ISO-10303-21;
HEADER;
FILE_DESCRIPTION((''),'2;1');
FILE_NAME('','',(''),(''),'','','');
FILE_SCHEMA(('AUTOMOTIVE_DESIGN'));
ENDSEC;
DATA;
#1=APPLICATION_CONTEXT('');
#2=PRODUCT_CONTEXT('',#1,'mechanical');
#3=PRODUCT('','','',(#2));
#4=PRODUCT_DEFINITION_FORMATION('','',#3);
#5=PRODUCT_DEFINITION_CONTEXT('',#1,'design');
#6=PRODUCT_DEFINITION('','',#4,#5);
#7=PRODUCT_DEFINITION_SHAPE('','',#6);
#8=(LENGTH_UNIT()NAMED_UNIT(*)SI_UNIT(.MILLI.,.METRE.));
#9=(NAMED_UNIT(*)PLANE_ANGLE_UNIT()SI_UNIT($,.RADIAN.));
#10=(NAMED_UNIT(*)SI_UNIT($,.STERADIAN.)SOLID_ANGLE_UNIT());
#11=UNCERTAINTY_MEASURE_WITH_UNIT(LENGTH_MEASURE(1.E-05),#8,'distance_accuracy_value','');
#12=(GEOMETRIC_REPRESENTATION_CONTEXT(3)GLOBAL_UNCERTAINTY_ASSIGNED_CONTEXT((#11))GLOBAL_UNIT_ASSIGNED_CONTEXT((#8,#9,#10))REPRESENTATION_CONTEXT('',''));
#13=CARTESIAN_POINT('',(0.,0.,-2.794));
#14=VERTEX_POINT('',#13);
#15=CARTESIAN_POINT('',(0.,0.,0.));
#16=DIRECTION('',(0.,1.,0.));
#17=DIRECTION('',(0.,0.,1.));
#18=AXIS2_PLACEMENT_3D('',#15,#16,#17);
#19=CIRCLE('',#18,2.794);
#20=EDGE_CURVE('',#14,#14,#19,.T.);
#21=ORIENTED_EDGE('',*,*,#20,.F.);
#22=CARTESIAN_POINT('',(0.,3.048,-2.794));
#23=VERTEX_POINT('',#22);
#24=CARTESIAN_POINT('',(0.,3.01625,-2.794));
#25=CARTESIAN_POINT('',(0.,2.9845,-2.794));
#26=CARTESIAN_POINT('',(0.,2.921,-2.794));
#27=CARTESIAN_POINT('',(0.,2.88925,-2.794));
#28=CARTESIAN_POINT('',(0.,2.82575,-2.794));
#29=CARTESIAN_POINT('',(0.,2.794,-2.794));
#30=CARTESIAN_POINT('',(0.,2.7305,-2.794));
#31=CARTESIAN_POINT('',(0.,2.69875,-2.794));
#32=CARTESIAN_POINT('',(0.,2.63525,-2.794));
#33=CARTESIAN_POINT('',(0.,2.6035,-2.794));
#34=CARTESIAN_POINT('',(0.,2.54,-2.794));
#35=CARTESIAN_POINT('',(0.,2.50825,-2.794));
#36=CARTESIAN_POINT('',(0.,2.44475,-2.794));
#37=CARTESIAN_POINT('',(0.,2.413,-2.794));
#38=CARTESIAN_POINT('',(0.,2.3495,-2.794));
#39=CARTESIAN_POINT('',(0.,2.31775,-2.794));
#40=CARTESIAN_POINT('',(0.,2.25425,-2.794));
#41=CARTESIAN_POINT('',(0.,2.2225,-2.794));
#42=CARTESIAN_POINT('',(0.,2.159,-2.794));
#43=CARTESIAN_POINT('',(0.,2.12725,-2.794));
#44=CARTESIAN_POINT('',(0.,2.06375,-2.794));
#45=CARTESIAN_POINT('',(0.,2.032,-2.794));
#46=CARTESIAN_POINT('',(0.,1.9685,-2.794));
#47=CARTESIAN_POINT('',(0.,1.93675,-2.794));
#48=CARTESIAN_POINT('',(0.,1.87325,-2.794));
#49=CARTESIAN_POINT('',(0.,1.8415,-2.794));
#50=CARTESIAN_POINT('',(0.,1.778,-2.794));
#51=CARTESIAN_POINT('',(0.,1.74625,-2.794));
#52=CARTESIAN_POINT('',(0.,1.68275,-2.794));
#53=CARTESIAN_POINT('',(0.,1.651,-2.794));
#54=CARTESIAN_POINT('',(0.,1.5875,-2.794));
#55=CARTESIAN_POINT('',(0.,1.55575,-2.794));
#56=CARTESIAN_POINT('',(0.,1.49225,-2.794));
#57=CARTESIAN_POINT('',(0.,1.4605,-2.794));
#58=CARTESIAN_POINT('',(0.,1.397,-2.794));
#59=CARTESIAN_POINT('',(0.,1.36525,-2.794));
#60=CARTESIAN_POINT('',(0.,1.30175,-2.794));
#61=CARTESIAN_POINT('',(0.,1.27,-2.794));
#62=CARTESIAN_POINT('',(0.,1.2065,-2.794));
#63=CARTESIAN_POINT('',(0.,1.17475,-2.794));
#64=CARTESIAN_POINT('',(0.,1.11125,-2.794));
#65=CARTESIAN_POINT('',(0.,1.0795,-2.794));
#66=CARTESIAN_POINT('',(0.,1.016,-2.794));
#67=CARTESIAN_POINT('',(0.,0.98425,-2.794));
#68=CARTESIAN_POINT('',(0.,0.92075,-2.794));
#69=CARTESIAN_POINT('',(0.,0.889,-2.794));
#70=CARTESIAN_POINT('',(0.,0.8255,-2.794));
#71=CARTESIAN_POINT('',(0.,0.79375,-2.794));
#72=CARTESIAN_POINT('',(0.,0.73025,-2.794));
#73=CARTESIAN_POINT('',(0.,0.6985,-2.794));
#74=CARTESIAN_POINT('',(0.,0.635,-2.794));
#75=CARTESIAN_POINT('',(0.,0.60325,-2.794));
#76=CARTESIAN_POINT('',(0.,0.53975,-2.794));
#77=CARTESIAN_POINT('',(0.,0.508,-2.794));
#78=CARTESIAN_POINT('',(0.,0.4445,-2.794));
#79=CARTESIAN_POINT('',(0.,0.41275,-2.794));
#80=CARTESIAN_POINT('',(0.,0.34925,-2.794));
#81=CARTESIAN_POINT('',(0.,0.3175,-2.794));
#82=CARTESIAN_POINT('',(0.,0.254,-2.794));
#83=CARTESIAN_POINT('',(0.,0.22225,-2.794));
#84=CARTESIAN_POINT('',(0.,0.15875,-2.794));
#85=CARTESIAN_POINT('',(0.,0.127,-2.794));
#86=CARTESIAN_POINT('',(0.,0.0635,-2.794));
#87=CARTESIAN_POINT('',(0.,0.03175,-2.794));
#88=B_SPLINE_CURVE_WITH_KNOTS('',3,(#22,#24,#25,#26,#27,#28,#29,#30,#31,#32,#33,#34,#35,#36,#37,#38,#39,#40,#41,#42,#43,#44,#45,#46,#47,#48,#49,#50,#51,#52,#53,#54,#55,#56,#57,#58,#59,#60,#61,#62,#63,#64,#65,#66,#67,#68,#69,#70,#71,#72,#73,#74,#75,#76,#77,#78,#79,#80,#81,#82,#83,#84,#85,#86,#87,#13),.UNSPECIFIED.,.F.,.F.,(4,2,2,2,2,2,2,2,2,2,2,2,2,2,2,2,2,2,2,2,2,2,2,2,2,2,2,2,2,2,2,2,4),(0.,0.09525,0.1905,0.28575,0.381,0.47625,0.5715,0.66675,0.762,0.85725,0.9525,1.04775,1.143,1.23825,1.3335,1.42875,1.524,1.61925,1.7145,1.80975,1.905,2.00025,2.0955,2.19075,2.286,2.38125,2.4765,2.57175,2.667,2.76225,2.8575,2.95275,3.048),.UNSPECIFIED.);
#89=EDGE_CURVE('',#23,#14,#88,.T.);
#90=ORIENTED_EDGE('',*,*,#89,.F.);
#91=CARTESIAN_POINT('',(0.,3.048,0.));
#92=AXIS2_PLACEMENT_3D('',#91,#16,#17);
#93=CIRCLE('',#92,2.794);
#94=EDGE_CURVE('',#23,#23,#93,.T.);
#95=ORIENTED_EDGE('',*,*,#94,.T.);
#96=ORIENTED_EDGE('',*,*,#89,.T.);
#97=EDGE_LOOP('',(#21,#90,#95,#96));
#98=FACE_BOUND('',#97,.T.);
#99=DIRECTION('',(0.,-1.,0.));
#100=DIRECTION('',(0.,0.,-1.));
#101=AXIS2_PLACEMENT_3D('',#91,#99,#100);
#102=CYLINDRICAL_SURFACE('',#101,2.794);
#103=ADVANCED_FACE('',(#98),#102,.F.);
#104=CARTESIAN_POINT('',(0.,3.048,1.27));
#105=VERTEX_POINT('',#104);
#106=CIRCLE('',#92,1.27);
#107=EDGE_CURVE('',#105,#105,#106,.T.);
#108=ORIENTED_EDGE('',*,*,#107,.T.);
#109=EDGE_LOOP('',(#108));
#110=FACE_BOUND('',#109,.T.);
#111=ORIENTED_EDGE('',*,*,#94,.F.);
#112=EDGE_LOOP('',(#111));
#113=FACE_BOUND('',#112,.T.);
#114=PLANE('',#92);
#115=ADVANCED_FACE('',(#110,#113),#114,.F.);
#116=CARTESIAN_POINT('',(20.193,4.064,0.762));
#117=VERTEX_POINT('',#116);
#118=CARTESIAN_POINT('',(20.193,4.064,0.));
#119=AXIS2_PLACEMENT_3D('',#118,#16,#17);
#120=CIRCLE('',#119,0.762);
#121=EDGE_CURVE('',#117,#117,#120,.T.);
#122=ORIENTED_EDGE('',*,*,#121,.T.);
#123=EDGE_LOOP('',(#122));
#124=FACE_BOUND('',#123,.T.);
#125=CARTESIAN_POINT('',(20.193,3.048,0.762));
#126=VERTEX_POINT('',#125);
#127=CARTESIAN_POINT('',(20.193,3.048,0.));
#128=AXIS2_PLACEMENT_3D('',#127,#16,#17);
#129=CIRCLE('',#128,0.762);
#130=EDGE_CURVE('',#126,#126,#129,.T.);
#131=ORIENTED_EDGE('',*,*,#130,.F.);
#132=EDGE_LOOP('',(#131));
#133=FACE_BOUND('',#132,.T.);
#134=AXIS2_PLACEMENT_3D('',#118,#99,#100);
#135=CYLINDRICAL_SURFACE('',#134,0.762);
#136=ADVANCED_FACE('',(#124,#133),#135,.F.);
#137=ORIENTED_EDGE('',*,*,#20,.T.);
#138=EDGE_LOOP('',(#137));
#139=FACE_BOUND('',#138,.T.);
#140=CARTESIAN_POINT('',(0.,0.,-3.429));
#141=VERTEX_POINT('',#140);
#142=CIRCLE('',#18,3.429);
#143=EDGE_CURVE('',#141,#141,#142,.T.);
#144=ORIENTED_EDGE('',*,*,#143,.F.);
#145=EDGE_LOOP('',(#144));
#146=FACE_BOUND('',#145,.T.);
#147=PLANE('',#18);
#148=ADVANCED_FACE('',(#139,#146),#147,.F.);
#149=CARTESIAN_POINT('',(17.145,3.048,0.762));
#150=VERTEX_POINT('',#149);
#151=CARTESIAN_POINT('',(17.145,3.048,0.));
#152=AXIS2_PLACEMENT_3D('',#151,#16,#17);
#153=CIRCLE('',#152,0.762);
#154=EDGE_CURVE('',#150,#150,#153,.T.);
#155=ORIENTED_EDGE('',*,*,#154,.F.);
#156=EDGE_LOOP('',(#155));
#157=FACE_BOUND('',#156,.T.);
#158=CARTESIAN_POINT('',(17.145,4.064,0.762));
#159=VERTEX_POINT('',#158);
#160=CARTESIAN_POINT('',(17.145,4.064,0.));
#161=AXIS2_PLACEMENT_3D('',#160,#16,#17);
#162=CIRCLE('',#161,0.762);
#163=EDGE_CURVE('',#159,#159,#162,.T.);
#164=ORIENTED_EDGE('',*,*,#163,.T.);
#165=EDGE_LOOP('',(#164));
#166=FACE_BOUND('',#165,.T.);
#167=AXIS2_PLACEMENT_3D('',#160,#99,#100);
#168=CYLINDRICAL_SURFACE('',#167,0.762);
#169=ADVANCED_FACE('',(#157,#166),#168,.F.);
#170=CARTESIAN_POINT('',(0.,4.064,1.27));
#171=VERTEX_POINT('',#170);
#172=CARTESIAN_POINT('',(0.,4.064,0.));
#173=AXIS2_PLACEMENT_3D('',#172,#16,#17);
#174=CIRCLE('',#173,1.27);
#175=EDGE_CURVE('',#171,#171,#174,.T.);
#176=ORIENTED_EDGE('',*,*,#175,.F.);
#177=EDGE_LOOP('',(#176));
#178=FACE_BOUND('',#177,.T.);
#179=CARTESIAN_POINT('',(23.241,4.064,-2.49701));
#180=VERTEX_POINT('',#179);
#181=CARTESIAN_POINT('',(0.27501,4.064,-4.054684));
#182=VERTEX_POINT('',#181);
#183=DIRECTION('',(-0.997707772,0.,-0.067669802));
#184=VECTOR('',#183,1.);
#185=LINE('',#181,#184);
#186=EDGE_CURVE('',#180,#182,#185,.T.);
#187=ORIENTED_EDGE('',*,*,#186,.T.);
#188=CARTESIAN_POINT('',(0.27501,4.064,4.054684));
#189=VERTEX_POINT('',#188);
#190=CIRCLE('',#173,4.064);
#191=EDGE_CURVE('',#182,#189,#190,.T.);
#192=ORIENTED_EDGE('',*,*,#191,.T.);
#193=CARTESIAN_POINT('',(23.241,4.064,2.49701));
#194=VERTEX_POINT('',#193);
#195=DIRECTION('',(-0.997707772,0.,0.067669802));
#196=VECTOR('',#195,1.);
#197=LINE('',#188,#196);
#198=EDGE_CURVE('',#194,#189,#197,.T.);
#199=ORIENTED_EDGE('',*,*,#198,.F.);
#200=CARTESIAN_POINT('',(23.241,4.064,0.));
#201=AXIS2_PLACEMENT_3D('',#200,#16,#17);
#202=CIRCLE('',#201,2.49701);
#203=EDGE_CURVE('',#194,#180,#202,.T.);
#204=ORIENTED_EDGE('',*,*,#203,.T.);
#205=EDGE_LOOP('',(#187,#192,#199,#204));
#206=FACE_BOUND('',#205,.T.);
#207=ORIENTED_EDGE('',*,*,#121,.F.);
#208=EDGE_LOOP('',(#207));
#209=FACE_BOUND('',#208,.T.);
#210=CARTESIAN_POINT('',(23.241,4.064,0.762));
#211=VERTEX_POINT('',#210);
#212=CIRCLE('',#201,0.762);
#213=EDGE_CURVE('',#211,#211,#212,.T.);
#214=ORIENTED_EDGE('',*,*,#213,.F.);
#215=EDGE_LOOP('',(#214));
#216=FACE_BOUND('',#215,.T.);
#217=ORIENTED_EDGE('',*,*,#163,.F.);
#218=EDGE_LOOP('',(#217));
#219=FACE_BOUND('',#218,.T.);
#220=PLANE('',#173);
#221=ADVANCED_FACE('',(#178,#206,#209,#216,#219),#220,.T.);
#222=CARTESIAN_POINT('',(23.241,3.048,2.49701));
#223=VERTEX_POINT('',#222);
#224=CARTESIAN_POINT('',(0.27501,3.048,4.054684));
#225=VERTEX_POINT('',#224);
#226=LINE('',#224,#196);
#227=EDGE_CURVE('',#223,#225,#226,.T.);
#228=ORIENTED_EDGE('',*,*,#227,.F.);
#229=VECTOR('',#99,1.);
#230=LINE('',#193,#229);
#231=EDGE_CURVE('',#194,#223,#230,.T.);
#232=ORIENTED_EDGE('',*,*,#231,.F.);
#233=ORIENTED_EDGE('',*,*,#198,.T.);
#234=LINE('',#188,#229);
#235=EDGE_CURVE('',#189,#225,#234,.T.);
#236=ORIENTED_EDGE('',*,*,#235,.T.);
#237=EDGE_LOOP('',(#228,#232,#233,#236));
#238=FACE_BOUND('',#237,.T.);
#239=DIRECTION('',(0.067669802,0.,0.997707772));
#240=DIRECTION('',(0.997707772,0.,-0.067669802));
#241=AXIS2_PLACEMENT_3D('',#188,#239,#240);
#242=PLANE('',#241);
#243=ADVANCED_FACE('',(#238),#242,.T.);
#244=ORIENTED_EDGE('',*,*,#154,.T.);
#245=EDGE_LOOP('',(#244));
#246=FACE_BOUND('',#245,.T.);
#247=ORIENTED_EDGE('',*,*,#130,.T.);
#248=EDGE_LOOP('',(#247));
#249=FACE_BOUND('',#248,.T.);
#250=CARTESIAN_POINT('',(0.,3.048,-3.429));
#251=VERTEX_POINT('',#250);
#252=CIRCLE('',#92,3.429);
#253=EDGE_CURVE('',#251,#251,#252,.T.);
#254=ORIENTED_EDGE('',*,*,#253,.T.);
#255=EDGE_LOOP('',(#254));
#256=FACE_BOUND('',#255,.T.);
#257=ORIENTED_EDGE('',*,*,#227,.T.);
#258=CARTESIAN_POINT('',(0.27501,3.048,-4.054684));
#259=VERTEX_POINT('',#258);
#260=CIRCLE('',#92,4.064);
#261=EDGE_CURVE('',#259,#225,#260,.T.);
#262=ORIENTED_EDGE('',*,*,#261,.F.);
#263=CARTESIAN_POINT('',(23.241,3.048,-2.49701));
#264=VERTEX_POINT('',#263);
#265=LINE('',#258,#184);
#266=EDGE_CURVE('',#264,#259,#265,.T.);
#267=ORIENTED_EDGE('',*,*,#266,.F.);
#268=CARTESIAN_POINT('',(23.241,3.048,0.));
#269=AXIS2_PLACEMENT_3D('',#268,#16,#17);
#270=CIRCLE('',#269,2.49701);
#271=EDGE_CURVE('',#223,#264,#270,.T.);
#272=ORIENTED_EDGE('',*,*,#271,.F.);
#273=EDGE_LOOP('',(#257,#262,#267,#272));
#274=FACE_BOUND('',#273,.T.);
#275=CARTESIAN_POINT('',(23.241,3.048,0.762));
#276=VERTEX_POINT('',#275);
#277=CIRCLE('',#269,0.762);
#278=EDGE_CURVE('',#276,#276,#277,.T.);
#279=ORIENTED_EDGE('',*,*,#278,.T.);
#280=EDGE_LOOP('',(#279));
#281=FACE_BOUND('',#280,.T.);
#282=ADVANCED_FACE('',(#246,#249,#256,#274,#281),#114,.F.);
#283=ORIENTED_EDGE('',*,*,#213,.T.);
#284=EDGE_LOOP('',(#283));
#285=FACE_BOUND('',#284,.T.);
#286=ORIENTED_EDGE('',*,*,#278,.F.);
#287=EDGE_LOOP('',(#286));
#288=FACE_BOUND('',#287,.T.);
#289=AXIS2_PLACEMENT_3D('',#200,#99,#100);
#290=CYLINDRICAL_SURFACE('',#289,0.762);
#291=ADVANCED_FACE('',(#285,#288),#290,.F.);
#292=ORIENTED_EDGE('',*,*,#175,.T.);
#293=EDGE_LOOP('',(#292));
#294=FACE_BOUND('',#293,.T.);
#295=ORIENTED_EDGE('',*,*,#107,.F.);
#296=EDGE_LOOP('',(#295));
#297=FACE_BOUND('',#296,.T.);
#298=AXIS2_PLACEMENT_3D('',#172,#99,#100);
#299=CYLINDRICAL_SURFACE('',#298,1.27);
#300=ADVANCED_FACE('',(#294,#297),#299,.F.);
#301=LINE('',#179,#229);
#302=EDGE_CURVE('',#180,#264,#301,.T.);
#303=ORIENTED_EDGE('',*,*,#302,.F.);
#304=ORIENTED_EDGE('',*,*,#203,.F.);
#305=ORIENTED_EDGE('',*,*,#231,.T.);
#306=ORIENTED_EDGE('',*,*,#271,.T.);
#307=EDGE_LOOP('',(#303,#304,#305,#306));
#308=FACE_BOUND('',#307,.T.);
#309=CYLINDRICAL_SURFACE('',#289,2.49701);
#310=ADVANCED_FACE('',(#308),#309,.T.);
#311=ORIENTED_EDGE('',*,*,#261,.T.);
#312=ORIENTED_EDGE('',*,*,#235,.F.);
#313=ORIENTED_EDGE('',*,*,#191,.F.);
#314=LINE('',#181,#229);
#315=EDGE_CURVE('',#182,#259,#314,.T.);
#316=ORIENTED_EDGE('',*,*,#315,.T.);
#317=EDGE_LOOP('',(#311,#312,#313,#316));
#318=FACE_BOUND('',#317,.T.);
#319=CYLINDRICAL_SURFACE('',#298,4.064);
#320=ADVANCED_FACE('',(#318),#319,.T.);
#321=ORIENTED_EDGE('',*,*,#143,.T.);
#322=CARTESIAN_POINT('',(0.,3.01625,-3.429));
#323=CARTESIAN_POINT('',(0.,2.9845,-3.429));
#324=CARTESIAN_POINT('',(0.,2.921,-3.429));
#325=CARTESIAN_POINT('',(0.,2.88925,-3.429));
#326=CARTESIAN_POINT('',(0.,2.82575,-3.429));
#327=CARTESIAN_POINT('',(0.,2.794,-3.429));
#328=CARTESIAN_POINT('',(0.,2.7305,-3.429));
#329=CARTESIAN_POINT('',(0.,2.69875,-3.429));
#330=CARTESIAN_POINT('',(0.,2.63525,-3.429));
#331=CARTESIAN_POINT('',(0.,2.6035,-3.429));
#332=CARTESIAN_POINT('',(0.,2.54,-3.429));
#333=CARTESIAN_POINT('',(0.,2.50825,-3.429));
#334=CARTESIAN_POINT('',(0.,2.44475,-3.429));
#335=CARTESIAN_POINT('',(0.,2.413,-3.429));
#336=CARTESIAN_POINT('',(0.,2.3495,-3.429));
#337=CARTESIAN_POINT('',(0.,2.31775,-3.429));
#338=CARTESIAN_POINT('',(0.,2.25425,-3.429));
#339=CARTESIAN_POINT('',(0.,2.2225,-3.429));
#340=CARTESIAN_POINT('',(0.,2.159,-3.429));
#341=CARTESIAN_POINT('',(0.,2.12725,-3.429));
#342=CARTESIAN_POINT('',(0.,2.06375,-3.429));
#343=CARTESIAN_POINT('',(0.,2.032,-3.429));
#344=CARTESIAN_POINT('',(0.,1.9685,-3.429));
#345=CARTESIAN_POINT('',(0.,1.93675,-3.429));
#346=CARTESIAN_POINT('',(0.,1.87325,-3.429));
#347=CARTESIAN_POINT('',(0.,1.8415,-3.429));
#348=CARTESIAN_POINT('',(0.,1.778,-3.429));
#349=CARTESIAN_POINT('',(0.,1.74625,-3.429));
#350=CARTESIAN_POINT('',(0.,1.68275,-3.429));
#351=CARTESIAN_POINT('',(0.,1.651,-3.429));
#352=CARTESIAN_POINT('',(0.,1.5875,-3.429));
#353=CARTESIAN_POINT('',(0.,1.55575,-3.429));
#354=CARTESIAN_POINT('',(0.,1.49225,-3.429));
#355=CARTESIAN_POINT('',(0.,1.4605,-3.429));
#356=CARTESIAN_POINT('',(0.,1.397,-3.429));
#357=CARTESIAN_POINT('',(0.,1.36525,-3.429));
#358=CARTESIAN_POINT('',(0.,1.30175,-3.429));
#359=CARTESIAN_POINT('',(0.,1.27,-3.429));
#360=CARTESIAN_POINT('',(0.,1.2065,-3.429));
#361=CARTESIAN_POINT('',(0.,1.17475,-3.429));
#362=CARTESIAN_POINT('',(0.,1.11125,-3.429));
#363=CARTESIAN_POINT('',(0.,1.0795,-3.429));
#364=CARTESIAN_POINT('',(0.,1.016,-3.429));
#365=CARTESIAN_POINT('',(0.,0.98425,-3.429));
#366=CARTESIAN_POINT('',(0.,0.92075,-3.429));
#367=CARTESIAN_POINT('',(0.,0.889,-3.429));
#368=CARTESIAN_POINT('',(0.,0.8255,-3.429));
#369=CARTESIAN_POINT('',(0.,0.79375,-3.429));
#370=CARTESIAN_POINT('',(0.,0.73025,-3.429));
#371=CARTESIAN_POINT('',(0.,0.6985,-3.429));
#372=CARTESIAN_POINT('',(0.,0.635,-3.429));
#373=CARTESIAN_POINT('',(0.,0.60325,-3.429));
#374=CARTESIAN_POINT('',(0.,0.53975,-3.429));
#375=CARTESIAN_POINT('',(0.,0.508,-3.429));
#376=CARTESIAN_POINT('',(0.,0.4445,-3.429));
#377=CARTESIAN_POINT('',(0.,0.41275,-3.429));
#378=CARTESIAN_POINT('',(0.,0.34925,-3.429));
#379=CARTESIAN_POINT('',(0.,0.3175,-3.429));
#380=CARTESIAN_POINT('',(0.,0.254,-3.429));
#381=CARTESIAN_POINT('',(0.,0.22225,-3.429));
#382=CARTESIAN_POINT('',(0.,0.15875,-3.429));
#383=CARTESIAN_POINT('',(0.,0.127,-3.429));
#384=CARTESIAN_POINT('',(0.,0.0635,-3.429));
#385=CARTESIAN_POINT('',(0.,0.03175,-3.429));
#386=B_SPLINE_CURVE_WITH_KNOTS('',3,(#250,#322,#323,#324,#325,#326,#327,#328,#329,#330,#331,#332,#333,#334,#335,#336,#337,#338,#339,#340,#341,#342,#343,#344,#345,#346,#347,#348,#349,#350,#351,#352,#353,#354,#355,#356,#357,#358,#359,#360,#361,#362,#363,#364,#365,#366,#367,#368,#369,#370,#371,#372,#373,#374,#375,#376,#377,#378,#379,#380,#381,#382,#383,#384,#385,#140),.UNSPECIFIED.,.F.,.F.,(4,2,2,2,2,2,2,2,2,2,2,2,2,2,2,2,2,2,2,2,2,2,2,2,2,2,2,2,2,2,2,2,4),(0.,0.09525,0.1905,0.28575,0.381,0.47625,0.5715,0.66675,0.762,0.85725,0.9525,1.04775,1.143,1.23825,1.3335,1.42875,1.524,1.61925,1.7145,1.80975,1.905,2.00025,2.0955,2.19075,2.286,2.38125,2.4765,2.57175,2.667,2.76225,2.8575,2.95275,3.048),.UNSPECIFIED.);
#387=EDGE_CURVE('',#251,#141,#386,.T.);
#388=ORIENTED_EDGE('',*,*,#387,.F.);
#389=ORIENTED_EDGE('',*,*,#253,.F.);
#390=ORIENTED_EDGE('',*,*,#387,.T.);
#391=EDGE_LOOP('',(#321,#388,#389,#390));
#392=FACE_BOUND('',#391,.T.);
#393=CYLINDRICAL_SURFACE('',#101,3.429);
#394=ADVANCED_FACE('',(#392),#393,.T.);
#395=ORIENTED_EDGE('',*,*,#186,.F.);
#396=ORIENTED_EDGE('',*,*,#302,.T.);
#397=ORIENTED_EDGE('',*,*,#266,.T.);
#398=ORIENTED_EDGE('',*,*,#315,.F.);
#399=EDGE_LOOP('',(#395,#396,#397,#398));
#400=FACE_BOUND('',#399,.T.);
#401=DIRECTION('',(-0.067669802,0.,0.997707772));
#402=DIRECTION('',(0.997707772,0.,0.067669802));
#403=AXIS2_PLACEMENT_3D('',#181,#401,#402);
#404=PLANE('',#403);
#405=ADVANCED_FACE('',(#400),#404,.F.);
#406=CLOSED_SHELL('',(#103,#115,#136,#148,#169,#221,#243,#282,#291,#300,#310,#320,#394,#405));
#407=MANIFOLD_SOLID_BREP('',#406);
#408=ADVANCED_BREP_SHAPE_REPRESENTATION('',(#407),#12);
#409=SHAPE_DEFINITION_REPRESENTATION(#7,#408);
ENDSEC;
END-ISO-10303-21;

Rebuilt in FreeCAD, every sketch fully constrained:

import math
import FreeCAD as App
import Part
import Sketcher

V = App.Vector
Q = App.Units.Quantity

doc = App.newDocument("Part")
body = doc.addObject("PartDesign::Body", "Body")

sketch1 = body.newObject("Sketcher::SketchObject", "Sketch")
sketch1.AttachmentSupport = (doc.getObject("XZ_Plane"), [""])
sketch1.MapMode = "FlatFace"
sketch1.addGeometry([
    Part.Circle(V(0, 0, 0), V(0, 0, 1), 3.4),
    Part.Circle(V(0, 0, 0), V(0, 0, 1), 2.8),
], False)
sketch1.addConstraint([
    Sketcher.Constraint("Coincident", 0, 3, -1, 1),
    Sketcher.Constraint("Coincident", 1, 3, -1, 1),
    Sketcher.Constraint("Diameter", 0, Q("0.27 in")),
    Sketcher.Constraint("Diameter", 1, Q("0.22 in")),
])
pad1 = body.newObject("PartDesign::Pad", "Pad")
pad1.Profile = sketch1
pad1.Length = Q("0.12 in")
pad1.Reversed = True

sketch2 = body.newObject("Sketcher::SketchObject", "Sketch001")
sketch2.AttachmentSupport = (doc.getObject("XZ_Plane"), [""])
sketch2.MapMode = "FlatFace"
sketch2.AttachmentOffset = App.Placement(V(0, 0, -0.12 * 25.4), App.Rotation())
sketch2.addGeometry([
    Part.ArcOfCircle(Part.Circle(V(0, 0, 0), V(0, 0, 1), 4.1), math.radians(86), math.radians(274)),
    Part.LineSegment(V(0.3, 4.1, 0), V(23.2, 2.5, 0)),
    Part.ArcOfCircle(Part.Circle(V(23.2, 0, 0), V(0, 0, 1), 2.5), math.radians(-90), math.radians(90)),
    Part.LineSegment(V(23.2, -2.5, 0), V(0.3, -4.1, 0)),
    Part.Circle(V(0, 0, 0), V(0, 0, 1), 1.3),
    Part.Circle(V(17.1, 0, 0), V(0, 0, 1), 0.8),
    Part.Circle(V(20.2, 0, 0), V(0, 0, 1), 0.8),
    Part.Circle(V(23.2, 0, 0), V(0, 0, 1), 0.8),
], False)
sketch2.addConstraint([
    Sketcher.Constraint("Tangent", 0, 1, 1, 1),
    Sketcher.Constraint("Coincident", 1, 2, 2, 2),
    Sketcher.Constraint("Coincident", 2, 1, 3, 1),
    Sketcher.Constraint("Tangent", 3, 2, 0, 2),
    Sketcher.Constraint("Coincident", 0, 3, -1, 1),
    Sketcher.Constraint("Coincident", 4, 3, -1, 1),
    Sketcher.Constraint("Coincident", 7, 3, 2, 3),
    Sketcher.Constraint("Equal", 5, 6),
    Sketcher.Constraint("Equal", 6, 7),
    Sketcher.Constraint("Symmetric", 1, 2, 2, 1, -1),
    Sketcher.Constraint("PointOnObject", 5, 3, -1),
    Sketcher.Constraint("PointOnObject", 6, 3, -1),
    Sketcher.Constraint("Vertical", 7, 3, 1, 2),
    Sketcher.Constraint("Diameter", 4, Q("0.1 in")),
    Sketcher.Constraint("Diameter", 5, Q("0.06 in")),
    Sketcher.Constraint("Radius", 0, Q("0.16 in")),
    Sketcher.Constraint("DistanceX", 5, 3, 2, 3, Q("0.24 in")),
    Sketcher.Constraint("DistanceX", 6, 3, 2, 3, Q("0.12 in")),
    Sketcher.Constraint("DistanceX", -1, 1, 2, 3, Q("0.915 in")),
    Sketcher.Constraint("Radius", 2, 2.49701),
])
pad2 = body.newObject("PartDesign::Pad", "Pad001")
pad2.Profile = sketch2
pad2.Length = Q("0.04 in")
pad2.Reversed = True

doc.recompute()
